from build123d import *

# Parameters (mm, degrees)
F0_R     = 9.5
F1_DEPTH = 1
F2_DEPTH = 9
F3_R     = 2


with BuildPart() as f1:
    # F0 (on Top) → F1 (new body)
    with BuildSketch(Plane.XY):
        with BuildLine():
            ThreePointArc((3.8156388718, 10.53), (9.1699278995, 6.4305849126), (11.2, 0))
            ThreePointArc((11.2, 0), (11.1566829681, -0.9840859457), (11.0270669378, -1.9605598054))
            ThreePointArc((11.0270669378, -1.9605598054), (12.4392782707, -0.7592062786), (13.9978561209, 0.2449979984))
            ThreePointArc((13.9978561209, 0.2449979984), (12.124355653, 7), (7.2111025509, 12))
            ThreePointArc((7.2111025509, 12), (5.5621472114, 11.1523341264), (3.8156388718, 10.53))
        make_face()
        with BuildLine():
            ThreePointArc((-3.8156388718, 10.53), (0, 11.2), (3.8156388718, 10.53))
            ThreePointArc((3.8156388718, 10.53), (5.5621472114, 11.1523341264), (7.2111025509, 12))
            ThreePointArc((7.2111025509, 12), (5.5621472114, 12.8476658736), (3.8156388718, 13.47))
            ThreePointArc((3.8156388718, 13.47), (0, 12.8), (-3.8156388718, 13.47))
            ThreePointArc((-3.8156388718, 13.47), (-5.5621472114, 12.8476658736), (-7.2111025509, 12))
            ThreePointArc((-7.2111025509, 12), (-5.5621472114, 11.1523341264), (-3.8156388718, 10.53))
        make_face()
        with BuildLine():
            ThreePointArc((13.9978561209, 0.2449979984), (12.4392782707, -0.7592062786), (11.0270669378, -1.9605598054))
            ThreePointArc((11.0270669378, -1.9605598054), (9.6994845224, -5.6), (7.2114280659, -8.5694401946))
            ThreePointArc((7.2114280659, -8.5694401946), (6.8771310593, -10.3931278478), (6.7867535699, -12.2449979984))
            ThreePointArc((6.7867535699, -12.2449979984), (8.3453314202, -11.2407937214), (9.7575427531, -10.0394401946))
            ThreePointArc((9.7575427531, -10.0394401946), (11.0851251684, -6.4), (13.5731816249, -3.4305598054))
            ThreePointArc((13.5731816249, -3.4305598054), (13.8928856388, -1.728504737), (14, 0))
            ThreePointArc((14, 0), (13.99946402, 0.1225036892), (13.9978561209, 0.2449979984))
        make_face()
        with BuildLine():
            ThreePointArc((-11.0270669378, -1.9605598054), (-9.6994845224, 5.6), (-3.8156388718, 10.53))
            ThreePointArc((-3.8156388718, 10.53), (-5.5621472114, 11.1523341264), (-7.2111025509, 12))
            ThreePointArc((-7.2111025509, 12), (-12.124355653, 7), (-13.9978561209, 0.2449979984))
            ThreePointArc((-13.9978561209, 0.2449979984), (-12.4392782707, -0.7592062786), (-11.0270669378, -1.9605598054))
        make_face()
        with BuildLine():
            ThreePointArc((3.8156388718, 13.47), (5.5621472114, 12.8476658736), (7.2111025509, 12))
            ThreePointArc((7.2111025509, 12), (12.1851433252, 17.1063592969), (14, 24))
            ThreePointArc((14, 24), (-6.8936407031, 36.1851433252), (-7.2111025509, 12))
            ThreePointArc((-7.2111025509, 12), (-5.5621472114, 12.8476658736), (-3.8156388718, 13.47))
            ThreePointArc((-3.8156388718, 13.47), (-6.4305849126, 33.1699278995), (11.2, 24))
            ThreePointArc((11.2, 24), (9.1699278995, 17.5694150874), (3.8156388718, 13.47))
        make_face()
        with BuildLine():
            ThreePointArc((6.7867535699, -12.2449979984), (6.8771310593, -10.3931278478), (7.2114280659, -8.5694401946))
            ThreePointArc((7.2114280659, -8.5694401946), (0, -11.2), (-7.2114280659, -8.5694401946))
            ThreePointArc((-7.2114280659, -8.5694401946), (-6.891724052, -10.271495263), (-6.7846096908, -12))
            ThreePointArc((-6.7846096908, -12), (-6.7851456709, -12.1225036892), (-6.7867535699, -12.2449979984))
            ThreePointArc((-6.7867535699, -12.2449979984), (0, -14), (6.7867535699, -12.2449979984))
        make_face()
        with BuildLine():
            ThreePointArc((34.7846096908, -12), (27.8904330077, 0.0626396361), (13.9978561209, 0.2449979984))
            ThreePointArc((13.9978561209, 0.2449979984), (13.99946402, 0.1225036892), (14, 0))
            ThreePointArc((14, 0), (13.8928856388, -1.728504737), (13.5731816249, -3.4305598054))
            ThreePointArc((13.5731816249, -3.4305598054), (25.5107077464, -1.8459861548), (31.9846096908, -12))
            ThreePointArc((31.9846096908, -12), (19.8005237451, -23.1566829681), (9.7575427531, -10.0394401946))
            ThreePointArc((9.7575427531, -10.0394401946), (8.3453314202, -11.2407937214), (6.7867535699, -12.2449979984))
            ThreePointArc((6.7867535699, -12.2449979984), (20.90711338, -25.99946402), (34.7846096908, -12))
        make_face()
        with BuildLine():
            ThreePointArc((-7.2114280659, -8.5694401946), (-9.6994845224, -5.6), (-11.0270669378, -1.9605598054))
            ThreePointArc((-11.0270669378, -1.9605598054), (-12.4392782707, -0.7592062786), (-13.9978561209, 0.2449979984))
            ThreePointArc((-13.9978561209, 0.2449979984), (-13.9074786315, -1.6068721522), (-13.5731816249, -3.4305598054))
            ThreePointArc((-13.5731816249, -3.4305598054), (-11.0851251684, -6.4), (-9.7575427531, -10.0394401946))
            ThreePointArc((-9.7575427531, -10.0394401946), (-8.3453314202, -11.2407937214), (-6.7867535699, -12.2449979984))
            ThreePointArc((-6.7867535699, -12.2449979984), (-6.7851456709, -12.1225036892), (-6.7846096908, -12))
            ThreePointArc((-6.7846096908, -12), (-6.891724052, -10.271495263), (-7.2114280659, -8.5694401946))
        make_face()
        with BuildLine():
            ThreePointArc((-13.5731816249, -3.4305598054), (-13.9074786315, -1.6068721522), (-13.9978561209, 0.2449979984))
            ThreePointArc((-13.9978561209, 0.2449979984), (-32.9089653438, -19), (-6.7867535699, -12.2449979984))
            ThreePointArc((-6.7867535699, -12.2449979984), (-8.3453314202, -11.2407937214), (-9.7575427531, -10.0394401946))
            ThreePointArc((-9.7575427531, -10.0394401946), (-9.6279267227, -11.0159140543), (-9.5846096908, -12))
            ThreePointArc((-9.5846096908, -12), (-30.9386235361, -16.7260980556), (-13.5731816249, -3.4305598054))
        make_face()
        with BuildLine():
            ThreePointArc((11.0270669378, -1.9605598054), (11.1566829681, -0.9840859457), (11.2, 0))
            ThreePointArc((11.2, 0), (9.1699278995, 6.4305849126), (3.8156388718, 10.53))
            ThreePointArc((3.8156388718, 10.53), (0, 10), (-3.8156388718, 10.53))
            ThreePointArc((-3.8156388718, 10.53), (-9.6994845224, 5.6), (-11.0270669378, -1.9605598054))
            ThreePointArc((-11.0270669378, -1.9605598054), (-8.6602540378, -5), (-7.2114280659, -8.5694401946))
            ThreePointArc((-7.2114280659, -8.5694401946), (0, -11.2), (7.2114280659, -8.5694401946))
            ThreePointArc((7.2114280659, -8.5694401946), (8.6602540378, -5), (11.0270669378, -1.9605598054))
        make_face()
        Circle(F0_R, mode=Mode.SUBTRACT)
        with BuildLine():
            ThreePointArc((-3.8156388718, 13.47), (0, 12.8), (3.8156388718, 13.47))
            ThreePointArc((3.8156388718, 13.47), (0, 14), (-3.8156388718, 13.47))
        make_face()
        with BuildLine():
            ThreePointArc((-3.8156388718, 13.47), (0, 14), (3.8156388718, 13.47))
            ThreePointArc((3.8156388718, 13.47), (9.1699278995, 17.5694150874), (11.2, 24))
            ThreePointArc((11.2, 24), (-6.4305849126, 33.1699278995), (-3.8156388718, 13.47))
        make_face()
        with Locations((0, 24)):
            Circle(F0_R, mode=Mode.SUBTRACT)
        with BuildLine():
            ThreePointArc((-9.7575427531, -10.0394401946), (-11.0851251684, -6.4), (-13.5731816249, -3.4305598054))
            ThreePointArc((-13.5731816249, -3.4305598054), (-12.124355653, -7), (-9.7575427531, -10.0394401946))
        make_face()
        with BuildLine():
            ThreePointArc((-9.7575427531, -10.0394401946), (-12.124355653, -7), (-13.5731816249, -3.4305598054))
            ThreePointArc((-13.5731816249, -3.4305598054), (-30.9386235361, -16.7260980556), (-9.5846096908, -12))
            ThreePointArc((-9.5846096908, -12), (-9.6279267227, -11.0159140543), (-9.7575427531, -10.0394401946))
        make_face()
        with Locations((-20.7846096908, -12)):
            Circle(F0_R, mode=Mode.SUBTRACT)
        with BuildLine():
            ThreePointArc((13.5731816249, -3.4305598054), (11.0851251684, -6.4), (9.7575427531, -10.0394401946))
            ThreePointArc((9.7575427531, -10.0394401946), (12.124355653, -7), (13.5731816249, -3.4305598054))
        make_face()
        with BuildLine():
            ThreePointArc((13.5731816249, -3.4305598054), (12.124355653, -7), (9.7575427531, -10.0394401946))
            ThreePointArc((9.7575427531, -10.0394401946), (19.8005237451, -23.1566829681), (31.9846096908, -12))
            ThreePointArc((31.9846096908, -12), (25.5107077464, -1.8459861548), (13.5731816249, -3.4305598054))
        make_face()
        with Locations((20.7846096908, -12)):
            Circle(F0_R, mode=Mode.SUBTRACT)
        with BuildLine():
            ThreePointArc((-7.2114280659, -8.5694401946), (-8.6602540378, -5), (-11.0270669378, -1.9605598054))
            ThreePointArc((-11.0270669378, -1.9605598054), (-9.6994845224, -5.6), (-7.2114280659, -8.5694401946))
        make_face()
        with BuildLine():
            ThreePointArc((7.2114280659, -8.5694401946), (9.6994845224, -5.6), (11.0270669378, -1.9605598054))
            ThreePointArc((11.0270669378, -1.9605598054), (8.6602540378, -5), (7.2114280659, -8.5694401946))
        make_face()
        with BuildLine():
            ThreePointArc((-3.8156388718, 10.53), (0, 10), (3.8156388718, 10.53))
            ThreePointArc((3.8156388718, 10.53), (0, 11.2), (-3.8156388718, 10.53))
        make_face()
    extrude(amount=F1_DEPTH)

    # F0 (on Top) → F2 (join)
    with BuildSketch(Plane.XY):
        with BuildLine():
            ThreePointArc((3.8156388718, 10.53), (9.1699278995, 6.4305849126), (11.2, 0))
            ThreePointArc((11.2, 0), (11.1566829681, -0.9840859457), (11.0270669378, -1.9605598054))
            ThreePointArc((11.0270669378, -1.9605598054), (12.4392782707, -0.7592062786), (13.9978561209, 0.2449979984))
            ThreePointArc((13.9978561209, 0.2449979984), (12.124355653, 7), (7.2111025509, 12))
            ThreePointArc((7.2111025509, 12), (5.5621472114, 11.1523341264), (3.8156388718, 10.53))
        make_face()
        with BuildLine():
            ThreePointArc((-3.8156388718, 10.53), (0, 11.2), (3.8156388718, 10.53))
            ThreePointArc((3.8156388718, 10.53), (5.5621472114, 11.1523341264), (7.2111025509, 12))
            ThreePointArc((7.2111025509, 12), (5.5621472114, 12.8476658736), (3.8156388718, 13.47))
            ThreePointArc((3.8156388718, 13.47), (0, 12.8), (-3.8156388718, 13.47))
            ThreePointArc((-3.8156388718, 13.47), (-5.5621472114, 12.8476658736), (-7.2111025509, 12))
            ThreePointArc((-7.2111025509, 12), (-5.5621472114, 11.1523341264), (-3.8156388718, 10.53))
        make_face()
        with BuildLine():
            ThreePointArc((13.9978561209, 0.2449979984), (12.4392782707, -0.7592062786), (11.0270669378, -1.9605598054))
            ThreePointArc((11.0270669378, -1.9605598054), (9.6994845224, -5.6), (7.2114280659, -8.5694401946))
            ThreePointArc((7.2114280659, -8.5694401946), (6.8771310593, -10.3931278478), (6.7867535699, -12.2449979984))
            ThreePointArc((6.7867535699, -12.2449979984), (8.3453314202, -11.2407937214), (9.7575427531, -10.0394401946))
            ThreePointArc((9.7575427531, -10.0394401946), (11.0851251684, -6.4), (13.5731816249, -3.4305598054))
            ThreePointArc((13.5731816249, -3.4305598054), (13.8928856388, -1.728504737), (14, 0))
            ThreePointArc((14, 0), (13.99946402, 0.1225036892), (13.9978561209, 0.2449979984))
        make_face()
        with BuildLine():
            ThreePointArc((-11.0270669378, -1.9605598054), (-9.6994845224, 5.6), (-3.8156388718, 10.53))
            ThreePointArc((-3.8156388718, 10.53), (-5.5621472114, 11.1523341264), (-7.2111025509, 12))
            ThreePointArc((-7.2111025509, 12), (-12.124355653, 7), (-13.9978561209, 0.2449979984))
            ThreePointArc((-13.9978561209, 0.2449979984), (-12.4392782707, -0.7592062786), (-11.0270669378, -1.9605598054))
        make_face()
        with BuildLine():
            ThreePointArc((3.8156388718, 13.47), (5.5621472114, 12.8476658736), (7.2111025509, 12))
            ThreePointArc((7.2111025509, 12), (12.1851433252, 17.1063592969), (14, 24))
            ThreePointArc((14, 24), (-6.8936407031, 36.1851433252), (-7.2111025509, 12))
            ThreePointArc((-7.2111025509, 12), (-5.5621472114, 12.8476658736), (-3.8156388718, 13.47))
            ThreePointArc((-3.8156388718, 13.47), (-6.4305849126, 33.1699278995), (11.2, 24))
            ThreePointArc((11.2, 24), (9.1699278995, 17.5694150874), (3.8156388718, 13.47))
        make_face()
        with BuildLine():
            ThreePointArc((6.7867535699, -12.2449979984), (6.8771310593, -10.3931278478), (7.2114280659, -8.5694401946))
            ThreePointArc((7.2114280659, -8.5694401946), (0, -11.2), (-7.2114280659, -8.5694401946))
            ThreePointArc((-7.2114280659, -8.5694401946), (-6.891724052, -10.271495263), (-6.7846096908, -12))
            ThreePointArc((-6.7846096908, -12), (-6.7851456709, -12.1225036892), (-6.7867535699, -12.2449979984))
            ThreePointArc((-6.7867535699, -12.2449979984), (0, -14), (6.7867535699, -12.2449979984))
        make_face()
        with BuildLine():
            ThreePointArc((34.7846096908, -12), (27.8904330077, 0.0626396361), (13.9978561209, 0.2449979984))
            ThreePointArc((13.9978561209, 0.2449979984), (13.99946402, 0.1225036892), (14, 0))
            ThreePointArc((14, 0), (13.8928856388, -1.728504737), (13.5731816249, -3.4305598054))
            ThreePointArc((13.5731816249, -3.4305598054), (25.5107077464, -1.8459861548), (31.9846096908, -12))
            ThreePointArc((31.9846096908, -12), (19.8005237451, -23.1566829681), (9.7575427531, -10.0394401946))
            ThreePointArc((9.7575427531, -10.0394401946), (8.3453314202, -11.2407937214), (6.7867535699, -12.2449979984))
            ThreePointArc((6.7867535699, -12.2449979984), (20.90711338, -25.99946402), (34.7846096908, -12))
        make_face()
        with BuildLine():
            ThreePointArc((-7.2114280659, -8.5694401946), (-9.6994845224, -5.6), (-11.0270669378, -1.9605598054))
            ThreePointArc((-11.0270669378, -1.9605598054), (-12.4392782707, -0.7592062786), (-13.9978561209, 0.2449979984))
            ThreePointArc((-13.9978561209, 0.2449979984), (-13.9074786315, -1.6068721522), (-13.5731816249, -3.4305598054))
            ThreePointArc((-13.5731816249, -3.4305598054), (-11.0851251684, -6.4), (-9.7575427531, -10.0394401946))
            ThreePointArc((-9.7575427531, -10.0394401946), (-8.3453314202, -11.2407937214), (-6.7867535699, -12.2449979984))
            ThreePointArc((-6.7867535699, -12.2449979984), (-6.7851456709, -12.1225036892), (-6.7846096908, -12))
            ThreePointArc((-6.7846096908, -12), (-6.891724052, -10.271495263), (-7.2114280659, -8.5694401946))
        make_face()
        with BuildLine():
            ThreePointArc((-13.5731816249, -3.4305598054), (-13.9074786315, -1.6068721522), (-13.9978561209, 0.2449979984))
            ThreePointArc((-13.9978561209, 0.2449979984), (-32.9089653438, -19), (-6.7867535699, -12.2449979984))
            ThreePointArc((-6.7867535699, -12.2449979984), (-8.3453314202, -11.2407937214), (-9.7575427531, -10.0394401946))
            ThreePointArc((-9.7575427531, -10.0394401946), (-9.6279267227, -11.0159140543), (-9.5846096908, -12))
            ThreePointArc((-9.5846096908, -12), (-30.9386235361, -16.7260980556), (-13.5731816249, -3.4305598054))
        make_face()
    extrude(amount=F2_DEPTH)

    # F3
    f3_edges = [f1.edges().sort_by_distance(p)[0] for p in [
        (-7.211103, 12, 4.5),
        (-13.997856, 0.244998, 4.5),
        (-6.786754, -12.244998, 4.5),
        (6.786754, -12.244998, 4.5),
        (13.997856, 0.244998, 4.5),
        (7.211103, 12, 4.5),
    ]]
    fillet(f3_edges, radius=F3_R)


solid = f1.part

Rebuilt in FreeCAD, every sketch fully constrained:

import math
import FreeCAD as App
import Part
import Sketcher

V = App.Vector
Q = App.Units.Quantity


def edges_at(feature, points):
    """Names of the edges that pass closest to the given points."""
    edges = feature.Shape.Edges
    near = lambda p: min(range(len(edges)), key=lambda i: edges[i].distToShape(Part.Vertex(*p))[0])
    return sorted({f"Edge{near(p) + 1}" for p in points})

doc = App.newDocument("Part")
params = doc.addObject("Spreadsheet::Sheet", "Params")
for row, (alias, value) in enumerate([
    ("sketch1_diameter", "19 mm"),
    ("sketch1_radius", "14 mm"),
    ("pad1_length", "1 mm"),
    ("sketch2_radius", "14 mm"),
    ("sketch2_radius2", "11.2 mm"),
    ("pad2_length", "9 mm"),
    ("fillet_radius", "2 mm"),
], start=1):
    params.set(f"A{row}", alias)
    params.set(f"B{row}", "=" + value)
    params.setAlias(f"B{row}", alias)

body = doc.addObject("PartDesign::Body", "Body")

# Sketch on XY plane
sketch1 = doc.addObject("Sketcher::SketchObject", "Sketch")
body.addObject(sketch1)
sketch1.AttachmentSupport = (doc.XY_Plane, [""])
sketch1.MapMode = "FlatFace"
sketch1.addGeometry([
    Part.ArcOfCircle(Part.Circle(V(0, 0, 0), V(0, 0, 1), 14), math.radians(-119), math.radians(-61)),  # 0
    Part.ArcOfCircle(Part.Circle(V(21, -12, 0), V(0, 0, 1), 14), math.radians(-179), math.radians(0)),  # 1
    Part.ArcOfCircle(Part.Circle(V(21, -12, 0), V(0, 0, 1), 14), math.radians(0), math.radians(119)),  # 2
    Part.ArcOfCircle(Part.Circle(V(0, 0, 0), V(0, 0, 1), 14), math.radians(1), math.radians(59)),  # 3
    Part.ArcOfCircle(Part.Circle(V(0, 24, 0), V(0, 0, 1), 14), math.radians(-59), math.radians(0)),  # 4
    Part.ArcOfCircle(Part.Circle(V(0, 24, 0), V(0, 0, 1), 14), math.radians(0), math.radians(239)),  # 5
    Part.ArcOfCircle(Part.Circle(V(0, 0, 0), V(0, 0, 1), 14), math.radians(121), math.radians(179)),  # 6
    Part.ArcOfCircle(Part.Circle(V(-21, -12, 0), V(0, 0, 1), 14), math.radians(61), math.radians(359)),  # 7
    Part.Circle(V(-21, -12, 0), V(0, 0, 1), 10),  # 8
    Part.Circle(V(0, 0, 0), V(0, 0, 1), 10),  # 9
    Part.Circle(V(21, -12, 0), V(0, 0, 1), 10),  # 10
    Part.Circle(V(0, 24, 0), V(0, 0, 1), 10),  # 11
], False)
sketch1.addConstraint([
    Sketcher.Constraint("Coincident", 0, 2, 1, 1),
    Sketcher.Constraint("Tangent", 1, 2, 2, 1),
    Sketcher.Constraint("Coincident", 2, 2, 3, 1),
    Sketcher.Constraint("Coincident", 3, 2, 4, 1),
    Sketcher.Constraint("Tangent", 4, 2, 5, 1),
    Sketcher.Constraint("Coincident", 5, 2, 6, 1),
    Sketcher.Constraint("Coincident", 6, 2, 7, 1),
    Sketcher.Constraint("Coincident", 7, 2, 0, 1),
    Sketcher.Constraint("Coincident", 0, 3, -1, 1),
    Sketcher.Constraint("Coincident", 3, 3, -1, 1),
    Sketcher.Constraint("Coincident", 6, 3, -1, 1),
    Sketcher.Constraint("Coincident", 9, 3, -1, 1),
    Sketcher.Constraint("Coincident", 8, 3, 7, 3),
    Sketcher.Constraint("Coincident", 10, 3, 1, 3),
    Sketcher.Constraint("Coincident", 11, 3, 4, 3),
    Sketcher.Constraint("Equal", 0, 1),
    Sketcher.Constraint("Equal", 1, 2),
    Sketcher.Constraint("Equal", 2, 3),
    Sketcher.Constraint("Equal", 3, 4),
    Sketcher.Constraint("Equal", 4, 5),
    Sketcher.Constraint("Equal", 5, 6),
    Sketcher.Constraint("Equal", 6, 7),
    Sketcher.Constraint("Equal", 8, 9),
    Sketcher.Constraint("Equal", 9, 10),
    Sketcher.Constraint("Equal", 10, 11),
    Sketcher.Constraint("Symmetric", 1, 3, 7, 3, -2),
    Sketcher.Constraint("PointOnObject", 4, 3, -2),
    Sketcher.Constraint("Horizontal", 10, 3, 1, 2),
    Sketcher.Constraint("Horizontal", 11, 3, 4, 2),
    Sketcher.Constraint("Diameter", 8, Q("19 mm")),
    Sketcher.Constraint("Radius", 0, Q("14 mm")),
    Sketcher.Constraint("DistanceY", 1, 3, -1, 1, Q("12 mm")),
    Sketcher.Constraint("DistanceY", -1, 1, 4, 3, Q("24 mm")),
    Sketcher.Constraint("DistanceX", -1, 1, 1, 3, Q("20.78461 mm")),
])
sketch1.setExpression("Constraints[29]", "Params.sketch1_diameter")
sketch1.setExpression("Constraints[30]", "Params.sketch1_radius")
pad1 = doc.addObject("PartDesign::Pad", "Pad")
body.addObject(pad1)
pad1.Profile = sketch1
pad1.setExpression("Length", "Params.pad1_length")

# Sketch on XY plane
sketch2 = doc.addObject("Sketcher::SketchObject", "Sketch001")
body.addObject(sketch2)
sketch2.AttachmentSupport = (doc.XY_Plane, [""])
sketch2.MapMode = "FlatFace"
sketch2.addGeometry([
    Part.ArcOfCircle(Part.Circle(V(0, 0, 0), V(0, 0, 1), 14), math.radians(-119), math.radians(-61)),  # 0
    Part.ArcOfCircle(Part.Circle(V(20.8, -12, 0), V(0, 0, 1), 14), math.radians(-179), math.radians(0)),  # 1
    Part.ArcOfCircle(Part.Circle(V(20.8, -12, 0), V(0, 0, 1), 14), math.radians(0), math.radians(119)),  # 2
    Part.ArcOfCircle(Part.Circle(V(0, 0, 0), V(0, 0, 1), 14), math.radians(1), math.radians(59)),  # 3
    Part.ArcOfCircle(Part.Circle(V(0, 24, 0), V(0, 0, 1), 14), math.radians(-59), math.radians(0)),  # 4
    Part.ArcOfCircle(Part.Circle(V(0, 24, 0), V(0, 0, 1), 14), math.radians(0), math.radians(239)),  # 5
    Part.ArcOfCircle(Part.Circle(V(0, 0, 0), V(0, 0, 1), 14), math.radians(121), math.radians(179)),  # 6
    Part.ArcOfCircle(Part.Circle(V(-20.8, -12, 0), V(0, 0, 1), 14), math.radians(61), math.radians(359)),  # 7
    Part.ArcOfCircle(Part.Circle(V(0, 0, 0), V(0, 0, 1), 11.2), math.radians(0), math.radians(70)),  # 8
    Part.ArcOfCircle(Part.Circle(V(0, 0, 0), V(0, 0, 1), 11.2), math.radians(-10.08), math.radians(0)),  # 9
    Part.ArcOfCircle(Part.Circle(V(0, 0, 0), V(0, 0, 1), 11.2), math.radians(-50), math.radians(-10)),  # 10
    Part.ArcOfCircle(Part.Circle(V(0, 0, 0), V(0, 0, 1), 11.2), math.radians(-130), math.radians(-50)),  # 11
    Part.ArcOfCircle(Part.Circle(V(0, 0, 0), V(0, 0, 1), 11.2), math.radians(-170), math.radians(-130)),  # 12
    Part.ArcOfCircle(Part.Circle(V(0, 0, 0), V(0, 0, 1), 11.2), math.radians(70), math.radians(190)),  # 13
    Part.ArcOfCircle(Part.Circle(V(-20.8, -12, 0), V(0, 0, 1), 11.2), math.radians(10), math.radians(50)),  # 14
    Part.ArcOfCircle(Part.Circle(V(-20.8, -12, 0), V(0, 0, 1), 11.2), math.radians(0), math.radians(10.08)),  # 15
    Part.ArcOfCircle(Part.Circle(V(-20.8, -12, 0), V(0, 0, 1), 11.2), math.radians(50), math.radians(360)),  # 16
    Part.ArcOfCircle(Part.Circle(V(20.8, -12, 0), V(0, 0, 1), 11.2), math.radians(130), math.radians(170)),  # 17
    Part.ArcOfCircle(Part.Circle(V(20.8, -12, 0), V(0, 0, 1), 11.2), math.radians(170), math.radians(490)),  # 18
    Part.ArcOfCircle(Part.Circle(V(0, 24, 0), V(0, 0, 1), 11.2), math.radians(0), math.radians(290)),  # 19
    Part.ArcOfCircle(Part.Circle(V(0, 24, 0), V(0, 0, 1), 11.2), math.radians(-70), math.radians(0)),  # 20
], False)
sketch2.addConstraint([
    Sketcher.Constraint("Coincident", 0, 2, 1, 1),
    Sketcher.Constraint("Tangent", 1, 2, 2, 1),
    Sketcher.Constraint("Coincident", 2, 2, 3, 1),
    Sketcher.Constraint("Coincident", 3, 2, 4, 1),
    Sketcher.Constraint("Tangent", 4, 2, 5, 1),
    Sketcher.Constraint("Coincident", 5, 2, 6, 1),
    Sketcher.Constraint("Coincident", 6, 2, 7, 1),
    Sketcher.Constraint("Coincident", 7, 2, 0, 1),
    Sketcher.Constraint("Tangent", 8, 1, 9, 2),
    Sketcher.Constraint("Tangent", 9, 1, 10, 2),
    Sketcher.Constraint("Tangent", 10, 1, 11, 2),
    Sketcher.Constraint("Tangent", 11, 1, 12, 2),
    Sketcher.Constraint("Tangent", 12, 1, 13, 2),
    Sketcher.Constraint("Tangent", 13, 1, 8, 2),
    Sketcher.Constraint("Tangent", 14, 1, 15, 2),
    Sketcher.Constraint("Tangent", 15, 1, 16, 2),
    Sketcher.Constraint("Tangent", 16, 1, 14, 2),
    Sketcher.Constraint("Tangent", 17, 1, 18, 2),
    Sketcher.Constraint("Coincident", 18, 1, 17, 2),
    Sketcher.Constraint("Tangent", 19, 1, 20, 2),
    Sketcher.Constraint("Coincident", 20, 1, 19, 2),
    Sketcher.Constraint("Coincident", 0, 3, -1, 1),
    Sketcher.Constraint("Coincident", 3, 3, -1, 1),
    Sketcher.Constraint("Coincident", 6, 3, -1, 1),
    Sketcher.Constraint("Coincident", 8, 3, -1, 1),
    Sketcher.Constraint("Coincident", 10, 3, -1, 1),
    Sketcher.Constraint("Coincident", 14, 3, 7, 3),
    Sketcher.Constraint("Coincident", 17, 3, 1, 3),
    Sketcher.Constraint("Coincident", 19, 3, 4, 3),
    Sketcher.Constraint("Equal", 0, 1),
    Sketcher.Constraint("Equal", 1, 2),
    Sketcher.Constraint("Equal", 2, 3),
    Sketcher.Constraint("Equal", 3, 4),
    Sketcher.Constraint("Equal", 4, 5),
    Sketcher.Constraint("Equal", 5, 6),
    Sketcher.Constraint("Equal", 6, 7),
    Sketcher.Constraint("Equal", 10, 11),
    Sketcher.Constraint("Equal", 13, 14),
    Sketcher.Constraint("Equal", 16, 17),
    Sketcher.Constraint("Equal", 18, 19),
    Sketcher.Constraint("Symmetric", 1, 3, 7, 3, -2),
    Sketcher.Constraint("PointOnObject", 4, 3, -2),
    Sketcher.Constraint("PointOnObject", 8, 1, -1),
    Sketcher.Constraint("Horizontal", 18, 3, 1, 2),
    Sketcher.Constraint("Horizontal", 20, 3, 4, 2),
    Sketcher.Constraint("Horizontal", 10, 1, 11, 1),
    Sketcher.Constraint("Horizontal", 9, 1, 12, 1),
    Sketcher.Constraint("Horizontal", 1, 2, 15, 1),
    Sketcher.Constraint("Horizontal", 16, 1, 17, 1),
    Sketcher.Constraint("Horizontal", 14, 1, 18, 1),
    Sketcher.Constraint("Horizontal", 4, 2, 19, 1),
    Sketcher.Constraint("Vertical", 13, 1, 20, 1),
    Sketcher.Constraint("Radius", 0, Q("14 mm")),
    Sketcher.Constraint("Radius", 8, Q("11.2 mm")),
    Sketcher.Constraint("DistanceY", 1, 3, -1, 1, Q("12 mm")),
    Sketcher.Constraint("DistanceY", -1, 1, 4, 3, Q("24 mm")),
    Sketcher.Constraint("DistanceY", -1, 1, 13, 1, Q("10.53 mm")),
    Sketcher.Constraint("DistanceY", 14, 1, 11, 1, Q("1.47 mm")),
    Sketcher.Constraint("DistanceY", 16, 1, 12, 1, Q("1.47 mm")),
    Sketcher.Constraint("DistanceX", -1, 1, 1, 3, Q("20.78461 mm")),
    Sketcher.Constraint("DistanceY", 9, 1, -1, 1, Q("1.96056 mm")),
    Sketcher.Constraint("DistanceX", -1, 1, 10, 1, Q("7.211428 mm")),
])
sketch2.setExpression("Constraints[52]", "Params.sketch2_radius")
sketch2.setExpression("Constraints[53]", "Params.sketch2_radius2")
pad2 = doc.addObject("PartDesign::Pad", "Pad001")
body.addObject(pad2)
pad2.Profile = sketch2
pad2.setExpression("Length", "Params.pad2_length")
doc.recompute()

fillet = doc.addObject("PartDesign::Fillet", "Fillet")
body.addObject(fillet)
fillet.Base = (pad2, edges_at(pad2, [
    (-7.211, 12, 4.5),
    (-13.998, 0.245, 4.5),
    (-6.787, -12.245, 4.5),
    (6.787, -12.245, 4.5),
    (13.998, 0.245, 4.5),
    (7.211, 12, 4.5),
]))
fillet.setExpression("Radius", "Params.fillet_radius")

doc.recompute()
